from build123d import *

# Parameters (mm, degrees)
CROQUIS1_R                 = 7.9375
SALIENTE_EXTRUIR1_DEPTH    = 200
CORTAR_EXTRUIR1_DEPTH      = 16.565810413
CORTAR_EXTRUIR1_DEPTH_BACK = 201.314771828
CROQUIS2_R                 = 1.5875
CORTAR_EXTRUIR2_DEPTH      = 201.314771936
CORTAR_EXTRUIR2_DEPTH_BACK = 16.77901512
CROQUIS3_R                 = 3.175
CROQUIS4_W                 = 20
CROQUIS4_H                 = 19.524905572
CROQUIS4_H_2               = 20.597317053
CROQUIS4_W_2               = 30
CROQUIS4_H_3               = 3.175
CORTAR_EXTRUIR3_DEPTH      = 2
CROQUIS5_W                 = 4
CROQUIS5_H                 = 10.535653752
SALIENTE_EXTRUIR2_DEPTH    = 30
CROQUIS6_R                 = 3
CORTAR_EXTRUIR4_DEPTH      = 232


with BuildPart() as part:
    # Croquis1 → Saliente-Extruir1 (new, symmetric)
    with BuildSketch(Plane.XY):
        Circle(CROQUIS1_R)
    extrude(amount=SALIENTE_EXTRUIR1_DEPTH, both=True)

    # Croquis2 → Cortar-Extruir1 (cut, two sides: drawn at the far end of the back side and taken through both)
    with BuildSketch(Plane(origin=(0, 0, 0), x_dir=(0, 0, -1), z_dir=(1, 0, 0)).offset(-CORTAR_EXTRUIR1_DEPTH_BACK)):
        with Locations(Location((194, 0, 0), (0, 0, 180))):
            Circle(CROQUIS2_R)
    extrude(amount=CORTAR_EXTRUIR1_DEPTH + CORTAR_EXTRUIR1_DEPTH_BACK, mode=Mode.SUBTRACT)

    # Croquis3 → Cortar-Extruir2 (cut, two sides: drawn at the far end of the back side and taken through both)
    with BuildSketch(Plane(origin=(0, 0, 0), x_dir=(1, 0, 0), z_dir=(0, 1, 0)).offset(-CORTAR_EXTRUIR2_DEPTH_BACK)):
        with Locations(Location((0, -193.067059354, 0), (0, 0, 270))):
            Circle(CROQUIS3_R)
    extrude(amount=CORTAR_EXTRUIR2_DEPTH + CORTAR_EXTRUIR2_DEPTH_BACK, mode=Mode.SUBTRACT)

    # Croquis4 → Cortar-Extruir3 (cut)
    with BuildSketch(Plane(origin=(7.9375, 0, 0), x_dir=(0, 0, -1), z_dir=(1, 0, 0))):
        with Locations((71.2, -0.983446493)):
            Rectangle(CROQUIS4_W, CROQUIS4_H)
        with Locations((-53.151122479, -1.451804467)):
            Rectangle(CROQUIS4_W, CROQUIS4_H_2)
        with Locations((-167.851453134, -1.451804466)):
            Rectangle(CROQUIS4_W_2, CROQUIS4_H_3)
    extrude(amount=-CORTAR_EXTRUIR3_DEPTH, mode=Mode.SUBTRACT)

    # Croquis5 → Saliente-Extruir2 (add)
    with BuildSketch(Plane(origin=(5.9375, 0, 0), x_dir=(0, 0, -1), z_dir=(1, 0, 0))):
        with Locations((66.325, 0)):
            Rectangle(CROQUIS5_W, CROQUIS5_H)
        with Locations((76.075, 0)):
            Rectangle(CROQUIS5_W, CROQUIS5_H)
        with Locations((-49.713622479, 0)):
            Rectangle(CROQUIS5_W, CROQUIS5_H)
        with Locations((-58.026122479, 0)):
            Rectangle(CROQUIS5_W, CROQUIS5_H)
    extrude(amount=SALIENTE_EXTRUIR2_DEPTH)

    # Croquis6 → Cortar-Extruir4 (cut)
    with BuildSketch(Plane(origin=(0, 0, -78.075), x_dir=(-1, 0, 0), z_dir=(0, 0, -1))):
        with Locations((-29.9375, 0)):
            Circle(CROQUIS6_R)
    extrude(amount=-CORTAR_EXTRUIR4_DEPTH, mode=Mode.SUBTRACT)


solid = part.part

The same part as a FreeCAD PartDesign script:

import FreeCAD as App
import Part
import Sketcher


def add_polygon(sketch, points):
    """Adds a closed chain of lines whose ends are joined by coincident constraints."""
    first, n = sketch.GeometryCount, len(points)
    for a, b in zip(points, points[1:] + points[:1]):
        sketch.addGeometry(Part.LineSegment(App.Vector(*a, 0), App.Vector(*b, 0)), False)
    for i in range(n):
        sketch.addConstraint(Sketcher.Constraint("Coincident", first + i, 2, first + (i + 1) % n, 1))

doc = App.newDocument("Part")
body = doc.addObject("PartDesign::Body", "Body")

# Sketch on XY plane
sketch1 = body.newObject("Sketcher::SketchObject", "Sketch")
sketch1.AttachmentSupport = (doc.getObject("XY_Plane"), [""])
sketch1.MapMode = "FlatFace"
sketch1.addGeometry(Part.Circle(App.Vector(0, 0, 0), App.Vector(0, 0, 1), 7.9375), False)
sketch1.addConstraint([
    Sketcher.Constraint("Coincident", 0, 3, -1, 1),
    Sketcher.Constraint("Diameter", 0, 15.875),
])
pad1 = body.newObject("PartDesign::Pad", "Pad")
pad1.Profile = sketch1
pad1.Length = 400
pad1.Midplane = True

# Sketch on YZ plane
sketch2 = body.newObject("Sketcher::SketchObject", "Sketch001")
sketch2.AttachmentSupport = (doc.getObject("YZ_Plane"), [""])
sketch2.MapMode = "FlatFace"
sketch2.addGeometry(Part.Circle(App.Vector(0, -194, 0), App.Vector(0, 0, 1), 1.5875), False)
sketch2.addConstraint([
    Sketcher.Constraint("PointOnObject", 0, 3, -2),
    Sketcher.Constraint("Diameter", 0, 3.175),
    Sketcher.Constraint("DistanceY", 0, 3, -1, 1, 194.0),
])
pocket1 = body.newObject("PartDesign::Pocket", "Pocket")
pocket1.Profile = sketch2
pocket1.Type = "ThroughAll"
pocket1.Midplane = True

# Sketch on XZ plane
sketch3 = body.newObject("Sketcher::SketchObject", "Sketch002")
sketch3.AttachmentSupport = (doc.getObject("XZ_Plane"), [""])
sketch3.MapMode = "FlatFace"
sketch3.addGeometry(Part.Circle(App.Vector(0, 193.067059, 0), App.Vector(0, 0, 1), 3.175), False)
sketch3.addConstraint([
    Sketcher.Constraint("PointOnObject", 0, 3, -2),
    Sketcher.Constraint("Diameter", 0, 6.35),
    Sketcher.Constraint("DistanceY", -1, 1, 0, 3, 193.067059),
])
pocket2 = body.newObject("PartDesign::Pocket", "Pocket001")
pocket2.Profile = sketch3
pocket2.Type = "ThroughAll"
pocket2.Midplane = True

# Sketch on YZ plane
sketch4 = body.newObject("Sketcher::SketchObject", "Sketch003")
sketch4.AttachmentSupport = (doc.getObject("YZ_Plane"), [""])
sketch4.MapMode = "FlatFace"
sketch4.AttachmentOffset = App.Placement(App.Vector(0, 0, 7.9375), App.Rotation())
add_polygon(sketch4, [(8.779006, -61.2), (-10.745899, -61.2), (-10.745899, -81.2), (8.779006, -81.2)])  # lines 0-3
add_polygon(sketch4, [(8.846854, 63.151122), (-11.750463, 63.151122), (-11.750463, 43.151122), (8.846854, 43.151122)])  # lines 4-7
add_polygon(sketch4, [(0.135696, 182.851453), (-3.039304, 182.851453), (-3.039304, 152.851453), (0.135696, 152.851453)])  # lines 8-11
sketch4.addConstraint([
    Sketcher.Constraint("Horizontal", 0),
    Sketcher.Constraint("Vertical", 1),
    Sketcher.Constraint("Horizontal", 2),
    Sketcher.Constraint("Vertical", 3),
    Sketcher.Constraint("Horizontal", 4),
    Sketcher.Constraint("Vertical", 5),
    Sketcher.Constraint("Horizontal", 6),
    Sketcher.Constraint("Vertical", 7),
    Sketcher.Constraint("Horizontal", 8),
    Sketcher.Constraint("Vertical", 9),
    Sketcher.Constraint("Horizontal", 10),
    Sketcher.Constraint("Vertical", 11),
    Sketcher.Constraint("Equal", 3, 5),
    Sketcher.Constraint("DistanceY", 1, 2, 1, 1, 20.0),
    Sketcher.Constraint("DistanceY", 9, 2, 9, 1, 30.0),
    Sketcher.Constraint("DistanceY", 0, 2, -1, 1, 61.2),
    Sketcher.Constraint("DistanceX", 8, 2, 8, 1, 3.175),
    Sketcher.Constraint("DistanceX", 0, 2, -1, 1, 10.745899),
    Sketcher.Constraint("DistanceX", 0, 2, 0, 1, 19.524906),
    Sketcher.Constraint("DistanceX", 4, 2, 4, 1, 20.597317),
    Sketcher.Constraint("DistanceX", 4, 2, 3, 2, 20.529469),
    Sketcher.Constraint("DistanceX", 4, 2, 8, 2, 8.711159),
    Sketcher.Constraint("DistanceY", 4, 2, 8, 2, 119.700331),
    Sketcher.Constraint("DistanceY", -1, 1, 4, 2, 63.151122),
])
pocket3 = body.newObject("PartDesign::Pocket", "Pocket002")
pocket3.Profile = sketch4
pocket3.Length = 2

# Sketch on YZ plane
sketch5 = body.newObject("Sketcher::SketchObject", "Sketch004")
sketch5.AttachmentSupport = (doc.getObject("YZ_Plane"), [""])
sketch5.MapMode = "FlatFace"
sketch5.AttachmentOffset = App.Placement(App.Vector(0, 0, 5.9375), App.Rotation())
add_polygon(sketch5, [(5.267827, -64.325), (-5.267827, -64.325), (-5.267827, -68.325), (5.267827, -68.325)])  # lines 0-3
add_polygon(sketch5, [(5.267827, -74.075), (-5.267827, -74.075), (-5.267827, -78.075), (5.267827, -78.075)])  # lines 4-7
add_polygon(sketch5, [(5.267827, 51.713622), (-5.267827, 51.713622), (-5.267827, 47.713622), (5.267827, 47.713622)])  # lines 8-11
add_polygon(sketch5, [(5.267827, 60.026122), (-5.267827, 60.026122), (-5.267827, 56.026122), (5.267827, 56.026122)])  # lines 12-15
sketch5.addConstraint([
    Sketcher.Constraint("Horizontal", 0),
    Sketcher.Constraint("Vertical", 1),
    Sketcher.Constraint("Horizontal", 2),
    Sketcher.Constraint("Vertical", 3),
    Sketcher.Constraint("Horizontal", 4),
    Sketcher.Constraint("Vertical", 5),
    Sketcher.Constraint("Horizontal", 6),
    Sketcher.Constraint("Vertical", 7),
    Sketcher.Constraint("Horizontal", 8),
    Sketcher.Constraint("Vertical", 9),
    Sketcher.Constraint("Horizontal", 10),
    Sketcher.Constraint("Vertical", 11),
    Sketcher.Constraint("Horizontal", 12),
    Sketcher.Constraint("Vertical", 13),
    Sketcher.Constraint("Horizontal", 14),
    Sketcher.Constraint("Vertical", 15),
    Sketcher.Constraint("Vertical", 1, 2, 4, 2),
    Sketcher.Constraint("Vertical", 3, 2, 6, 2),
    Sketcher.Constraint("Vertical", 5, 2, 8, 2),
    Sketcher.Constraint("Vertical", 7, 2, 10, 2),
    Sketcher.Constraint("Vertical", 9, 2, 12, 2),
    Sketcher.Constraint("Vertical", 11, 2, 14, 2),
    Sketcher.Constraint("Equal", 3, 5),
    Sketcher.Constraint("Equal", 7, 9),
    Sketcher.Constraint("Equal", 11, 13),
    Sketcher.Constraint("DistanceY", 1, 2, 1, 1, 4.0),
    Sketcher.Constraint("DistanceY", 4, 2, 1, 2, 5.75),
    Sketcher.Constraint("DistanceY", 0, 2, -1, 1, 64.325),
    Sketcher.Constraint("DistanceY", 8, 2, 12, 2, 8.3125),
    Sketcher.Constraint("DistanceX", 0, 2, 0, 1, 10.535654),
    Sketcher.Constraint("DistanceX", 0, 2, -1, 1, 5.267827),
    Sketcher.Constraint("DistanceY", -1, 1, 8, 2, 51.713622),
])
pad2 = body.newObject("PartDesign::Pad", "Pad001")
pad2.Profile = sketch5
pad2.Length = 30

# Sketch on XY plane
sketch6 = body.newObject("Sketcher::SketchObject", "Sketch005")
sketch6.AttachmentSupport = (doc.getObject("XY_Plane"), [""])
sketch6.MapMode = "FlatFace"
sketch6.AttachmentOffset = App.Placement(App.Vector(0, 0, -78.075), App.Rotation())
sketch6.addGeometry(Part.Circle(App.Vector(29.9375, 0, 0), App.Vector(0, 0, 1), 3), False)
sketch6.addConstraint([
    Sketcher.Constraint("PointOnObject", 0, 3, -1),
    Sketcher.Constraint("Diameter", 0, 6.0),
    Sketcher.Constraint("DistanceX", -1, 1, 0, 3, 29.9375),
])
pocket4 = body.newObject("PartDesign::Pocket", "Pocket003")
pocket4.Profile = sketch6
pocket4.Length = 232
pocket4.Reversed = True

doc.recompute()
